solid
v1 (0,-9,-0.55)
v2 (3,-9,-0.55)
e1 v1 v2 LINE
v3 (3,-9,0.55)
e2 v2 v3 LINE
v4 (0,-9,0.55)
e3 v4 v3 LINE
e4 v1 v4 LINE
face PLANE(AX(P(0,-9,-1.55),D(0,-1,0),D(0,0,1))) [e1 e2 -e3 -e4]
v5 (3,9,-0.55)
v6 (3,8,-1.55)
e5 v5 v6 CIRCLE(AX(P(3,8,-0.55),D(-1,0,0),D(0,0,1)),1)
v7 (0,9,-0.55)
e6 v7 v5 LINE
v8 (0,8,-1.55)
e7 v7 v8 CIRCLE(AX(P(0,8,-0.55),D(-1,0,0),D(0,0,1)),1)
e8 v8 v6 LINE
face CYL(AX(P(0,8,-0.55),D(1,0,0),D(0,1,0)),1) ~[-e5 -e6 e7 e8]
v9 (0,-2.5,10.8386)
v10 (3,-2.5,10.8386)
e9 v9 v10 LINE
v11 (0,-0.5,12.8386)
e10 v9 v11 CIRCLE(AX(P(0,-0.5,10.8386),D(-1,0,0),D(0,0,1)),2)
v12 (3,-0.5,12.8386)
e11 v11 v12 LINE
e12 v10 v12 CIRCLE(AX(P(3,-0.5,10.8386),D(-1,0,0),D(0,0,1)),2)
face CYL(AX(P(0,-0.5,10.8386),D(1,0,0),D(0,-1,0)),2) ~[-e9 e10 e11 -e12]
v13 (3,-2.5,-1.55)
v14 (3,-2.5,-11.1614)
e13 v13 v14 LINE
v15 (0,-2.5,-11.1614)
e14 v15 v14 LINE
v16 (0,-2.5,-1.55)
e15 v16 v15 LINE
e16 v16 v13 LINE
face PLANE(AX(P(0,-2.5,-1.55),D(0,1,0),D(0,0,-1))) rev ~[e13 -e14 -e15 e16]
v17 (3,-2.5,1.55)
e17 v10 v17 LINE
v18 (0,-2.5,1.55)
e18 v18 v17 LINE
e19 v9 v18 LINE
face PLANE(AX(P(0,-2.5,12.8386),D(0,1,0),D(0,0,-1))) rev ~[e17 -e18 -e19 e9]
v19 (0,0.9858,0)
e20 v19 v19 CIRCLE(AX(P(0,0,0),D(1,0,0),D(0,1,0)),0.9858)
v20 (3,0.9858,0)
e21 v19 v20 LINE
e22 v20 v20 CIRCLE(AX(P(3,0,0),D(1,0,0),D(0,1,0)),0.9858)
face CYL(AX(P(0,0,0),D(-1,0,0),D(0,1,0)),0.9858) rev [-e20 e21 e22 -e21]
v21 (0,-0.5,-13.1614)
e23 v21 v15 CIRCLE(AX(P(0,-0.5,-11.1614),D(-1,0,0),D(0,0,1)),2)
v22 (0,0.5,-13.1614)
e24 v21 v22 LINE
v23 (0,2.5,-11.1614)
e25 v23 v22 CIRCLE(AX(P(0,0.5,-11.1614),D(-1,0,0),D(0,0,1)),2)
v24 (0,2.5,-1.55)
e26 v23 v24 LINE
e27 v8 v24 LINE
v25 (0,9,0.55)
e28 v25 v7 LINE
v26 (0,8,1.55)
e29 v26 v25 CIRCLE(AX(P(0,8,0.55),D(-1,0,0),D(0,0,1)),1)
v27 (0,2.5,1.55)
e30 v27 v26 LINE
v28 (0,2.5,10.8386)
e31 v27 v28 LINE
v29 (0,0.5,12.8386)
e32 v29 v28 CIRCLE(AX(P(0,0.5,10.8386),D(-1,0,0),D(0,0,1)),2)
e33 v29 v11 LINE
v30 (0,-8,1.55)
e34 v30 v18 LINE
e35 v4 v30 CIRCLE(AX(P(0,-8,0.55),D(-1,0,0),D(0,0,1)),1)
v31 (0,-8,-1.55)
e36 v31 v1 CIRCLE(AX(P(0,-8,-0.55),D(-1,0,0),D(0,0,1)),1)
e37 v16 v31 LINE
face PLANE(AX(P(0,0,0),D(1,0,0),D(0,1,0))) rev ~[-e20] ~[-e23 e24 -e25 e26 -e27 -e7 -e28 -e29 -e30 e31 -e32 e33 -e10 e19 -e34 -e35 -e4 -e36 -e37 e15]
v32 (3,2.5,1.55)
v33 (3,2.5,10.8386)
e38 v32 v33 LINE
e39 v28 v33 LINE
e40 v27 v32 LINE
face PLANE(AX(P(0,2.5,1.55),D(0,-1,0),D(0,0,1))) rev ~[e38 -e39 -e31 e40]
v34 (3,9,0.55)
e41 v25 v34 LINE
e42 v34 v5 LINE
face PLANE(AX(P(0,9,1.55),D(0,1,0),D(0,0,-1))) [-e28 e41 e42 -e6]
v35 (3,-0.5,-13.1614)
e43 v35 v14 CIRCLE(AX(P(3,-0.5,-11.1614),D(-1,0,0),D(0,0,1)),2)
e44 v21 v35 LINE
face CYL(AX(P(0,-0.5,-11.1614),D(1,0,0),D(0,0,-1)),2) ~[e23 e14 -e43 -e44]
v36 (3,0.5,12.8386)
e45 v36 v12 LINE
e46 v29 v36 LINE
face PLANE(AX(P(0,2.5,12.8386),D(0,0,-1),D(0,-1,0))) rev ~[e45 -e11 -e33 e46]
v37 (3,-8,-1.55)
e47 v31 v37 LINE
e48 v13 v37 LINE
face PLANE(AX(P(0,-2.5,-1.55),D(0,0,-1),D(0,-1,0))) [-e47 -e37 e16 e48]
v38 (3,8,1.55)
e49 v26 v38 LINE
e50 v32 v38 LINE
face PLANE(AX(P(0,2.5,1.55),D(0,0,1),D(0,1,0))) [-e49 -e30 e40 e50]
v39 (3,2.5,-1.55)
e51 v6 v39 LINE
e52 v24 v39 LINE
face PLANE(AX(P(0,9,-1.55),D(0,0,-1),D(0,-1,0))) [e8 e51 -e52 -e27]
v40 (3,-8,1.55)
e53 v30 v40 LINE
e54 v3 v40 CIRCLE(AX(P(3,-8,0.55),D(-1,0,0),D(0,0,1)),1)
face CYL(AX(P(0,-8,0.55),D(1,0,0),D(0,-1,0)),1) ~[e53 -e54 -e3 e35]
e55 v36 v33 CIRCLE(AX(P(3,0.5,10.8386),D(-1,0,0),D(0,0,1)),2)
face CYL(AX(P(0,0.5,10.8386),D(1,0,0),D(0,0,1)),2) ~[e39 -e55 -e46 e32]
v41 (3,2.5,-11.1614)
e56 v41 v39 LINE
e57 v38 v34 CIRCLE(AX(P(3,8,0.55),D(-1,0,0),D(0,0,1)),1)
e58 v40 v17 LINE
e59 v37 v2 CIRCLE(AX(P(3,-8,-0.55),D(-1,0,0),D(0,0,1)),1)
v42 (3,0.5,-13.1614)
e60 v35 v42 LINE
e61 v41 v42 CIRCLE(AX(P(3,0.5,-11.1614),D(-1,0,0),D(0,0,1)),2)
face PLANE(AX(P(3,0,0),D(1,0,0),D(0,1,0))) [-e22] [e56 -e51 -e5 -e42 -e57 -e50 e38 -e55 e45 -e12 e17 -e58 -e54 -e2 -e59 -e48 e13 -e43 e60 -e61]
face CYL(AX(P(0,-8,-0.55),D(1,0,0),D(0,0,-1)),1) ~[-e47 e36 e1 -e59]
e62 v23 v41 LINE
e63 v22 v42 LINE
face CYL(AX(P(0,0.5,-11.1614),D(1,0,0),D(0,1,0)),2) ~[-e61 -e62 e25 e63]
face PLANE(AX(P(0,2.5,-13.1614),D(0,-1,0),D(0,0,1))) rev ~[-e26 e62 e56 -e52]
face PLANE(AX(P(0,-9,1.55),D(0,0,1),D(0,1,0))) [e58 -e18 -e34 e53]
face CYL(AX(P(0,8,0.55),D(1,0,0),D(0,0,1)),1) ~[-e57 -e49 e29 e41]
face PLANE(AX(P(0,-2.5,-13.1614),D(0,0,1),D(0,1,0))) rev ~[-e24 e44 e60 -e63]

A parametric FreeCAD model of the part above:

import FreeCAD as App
import Part
import Sketcher
Q = App.Units.Quantity


def edges_at(feature, points):
    """Names of the edges that pass closest to the given points."""
    edges = feature.Shape.Edges
    near = lambda p: min(range(len(edges)), key=lambda i: edges[i].distToShape(Part.Vertex(*p))[0])
    return sorted({f"Edge{near(p) + 1}" for p in points})

doc = App.newDocument("Part")
body = doc.addObject("PartDesign::Body", "Body")

sketch1 = doc.addObject("Sketcher::SketchObject", "Sketch")
body.addObject(sketch1)
sketch1.AttachmentSupport = (doc.YZ_Plane, [""])
sketch1.MapMode = "FlatFace"
sketch1.addGeometry([
    Part.LineSegment(App.Vector(-2.5, -1.55, 0), App.Vector(-2.5, -13.1614, 0)),
    Part.LineSegment(App.Vector(-2.5, -13.1614, 0), App.Vector(2.5, -13.1614, 0)),
    Part.LineSegment(App.Vector(2.5, -13.1614, 0), App.Vector(2.5, -1.55, 0)),
    Part.LineSegment(App.Vector(2.5, -1.55, 0), App.Vector(9, -1.55, 0)),
    Part.LineSegment(App.Vector(9, -1.55, 0), App.Vector(9, 1.55, 0)),
    Part.LineSegment(App.Vector(9, 1.55, 0), App.Vector(2.5, 1.55, 0)),
    Part.LineSegment(App.Vector(2.5, 1.55, 0), App.Vector(2.5, 12.8386, 0)),
    Part.LineSegment(App.Vector(2.5, 12.8386, 0), App.Vector(-2.5, 12.8386, 0)),
    Part.LineSegment(App.Vector(-2.5, 12.8386, 0), App.Vector(-2.5, 1.55, 0)),
    Part.LineSegment(App.Vector(-2.5, 1.55, 0), App.Vector(-9, 1.55, 0)),
    Part.LineSegment(App.Vector(-9, 1.55, 0), App.Vector(-9, -1.55, 0)),
    Part.LineSegment(App.Vector(-9, -1.55, 0), App.Vector(-2.5, -1.55, 0)),
    Part.Circle(App.Vector(0, 0, 0), App.Vector(0, 0, 1), 0.9858),
], False)
sketch1.addConstraint([
    Sketcher.Constraint("Coincident", 0, 2, 1, 1),
    Sketcher.Constraint("Coincident", 1, 2, 2, 1),
    Sketcher.Constraint("Coincident", 2, 2, 3, 1),
    Sketcher.Constraint("Coincident", 3, 2, 4, 1),
    Sketcher.Constraint("Coincident", 4, 2, 5, 1),
    Sketcher.Constraint("Coincident", 5, 2, 6, 1),
    Sketcher.Constraint("Coincident", 6, 2, 7, 1),
    Sketcher.Constraint("Coincident", 7, 2, 8, 1),
    Sketcher.Constraint("Coincident", 8, 2, 9, 1),
    Sketcher.Constraint("Coincident", 9, 2, 10, 1),
    Sketcher.Constraint("Coincident", 10, 2, 11, 1),
    Sketcher.Constraint("Coincident", 11, 2, 0, 1),
    Sketcher.Constraint("Vertical", 0),
    Sketcher.Constraint("Horizontal", 1),
    Sketcher.Constraint("Vertical", 2),
    Sketcher.Constraint("Horizontal", 3),
    Sketcher.Constraint("Vertical", 4),
    Sketcher.Constraint("Horizontal", 5),
    Sketcher.Constraint("Vertical", 6),
    Sketcher.Constraint("Horizontal", 7),
    Sketcher.Constraint("Vertical", 8),
    Sketcher.Constraint("Horizontal", 9),
    Sketcher.Constraint("Vertical", 10),
    Sketcher.Constraint("Horizontal", 11),
    Sketcher.Constraint("Coincident", 12, 3, -1, 1),
    Sketcher.Constraint("Symmetric", 2, 2, 8, 2, -1, 1),
    Sketcher.Constraint("Symmetric", 4, 2, 10, 2, -1, 1),
    Sketcher.Constraint("Symmetric", 5, 2, 8, 2, -2),
    Sketcher.Constraint("Vertical", 0, 2, 7, 2),
    Sketcher.Constraint("DistanceX", 1, 1, 1, 2, Q("5 mm")),
    Sketcher.Constraint("DistanceY", 4, 1, 4, 2, Q("3.1 mm")),
    Sketcher.Constraint("DistanceX", 3, 1, 3, 2, Q("6.5 mm")),
    Sketcher.Constraint("Diameter", 12, Q("1.9716 mm")),
    Sketcher.Constraint("DistanceY", 0, 2, 0, 1, Q("11.6114 mm")),
    Sketcher.Constraint("DistanceY", 6, 1, 6, 2, Q("11.2886 mm")),
])
pad1 = doc.addObject("PartDesign::Pad", "Pad")
body.addObject(pad1)
pad1.Profile = sketch1
pad1.Length = 3
doc.recompute()

fillet = doc.addObject("PartDesign::Fillet", "Fillet")
body.addObject(fillet)
fillet.Base = (pad1, edges_at(pad1, [(1.5, 9, 1.55)]))
fillet.Radius = 1
doc.recompute()

fillet2 = doc.addObject("PartDesign::Fillet", "Fillet001")
body.addObject(fillet2)
fillet2.Base = (fillet, edges_at(fillet, [(1.5, 9, -1.55)]))
fillet2.Radius = 1
doc.recompute()

fillet3 = doc.addObject("PartDesign::Fillet", "Fillet002")
body.addObject(fillet3)
fillet3.Base = (fillet2, edges_at(fillet2, [(1.5, -9, -1.55)]))
fillet3.Radius = 1
doc.recompute()

fillet4 = doc.addObject("PartDesign::Fillet", "Fillet003")
body.addObject(fillet4)
fillet4.Base = (fillet3, edges_at(fillet3, [(1.5, -9, 1.55)]))
fillet4.Radius = 1
doc.recompute()

fillet5 = doc.addObject("PartDesign::Fillet", "Fillet004")
body.addObject(fillet5)
fillet5.Base = (fillet4, edges_at(fillet4, [(1.5, -2.5, 12.839)]))
fillet5.Radius = 2
doc.recompute()

fillet6 = doc.addObject("PartDesign::Fillet", "Fillet005")
body.addObject(fillet6)
fillet6.Base = (fillet5, edges_at(fillet5, [(1.5, 2.5, 12.839)]))
fillet6.Radius = 2
doc.recompute()

fillet7 = doc.addObject("PartDesign::Fillet", "Fillet006")
body.addObject(fillet7)
fillet7.Base = (fillet6, edges_at(fillet6, [(1.5, 2.5, -13.161)]))
fillet7.Radius = 2
doc.recompute()

fillet8 = doc.addObject("PartDesign::Fillet", "Fillet007")
body.addObject(fillet8)
fillet8.Base = (fillet7, edges_at(fillet7, [(1.5, -2.5, -13.161)]))
fillet8.Radius = 2

doc.recompute()
